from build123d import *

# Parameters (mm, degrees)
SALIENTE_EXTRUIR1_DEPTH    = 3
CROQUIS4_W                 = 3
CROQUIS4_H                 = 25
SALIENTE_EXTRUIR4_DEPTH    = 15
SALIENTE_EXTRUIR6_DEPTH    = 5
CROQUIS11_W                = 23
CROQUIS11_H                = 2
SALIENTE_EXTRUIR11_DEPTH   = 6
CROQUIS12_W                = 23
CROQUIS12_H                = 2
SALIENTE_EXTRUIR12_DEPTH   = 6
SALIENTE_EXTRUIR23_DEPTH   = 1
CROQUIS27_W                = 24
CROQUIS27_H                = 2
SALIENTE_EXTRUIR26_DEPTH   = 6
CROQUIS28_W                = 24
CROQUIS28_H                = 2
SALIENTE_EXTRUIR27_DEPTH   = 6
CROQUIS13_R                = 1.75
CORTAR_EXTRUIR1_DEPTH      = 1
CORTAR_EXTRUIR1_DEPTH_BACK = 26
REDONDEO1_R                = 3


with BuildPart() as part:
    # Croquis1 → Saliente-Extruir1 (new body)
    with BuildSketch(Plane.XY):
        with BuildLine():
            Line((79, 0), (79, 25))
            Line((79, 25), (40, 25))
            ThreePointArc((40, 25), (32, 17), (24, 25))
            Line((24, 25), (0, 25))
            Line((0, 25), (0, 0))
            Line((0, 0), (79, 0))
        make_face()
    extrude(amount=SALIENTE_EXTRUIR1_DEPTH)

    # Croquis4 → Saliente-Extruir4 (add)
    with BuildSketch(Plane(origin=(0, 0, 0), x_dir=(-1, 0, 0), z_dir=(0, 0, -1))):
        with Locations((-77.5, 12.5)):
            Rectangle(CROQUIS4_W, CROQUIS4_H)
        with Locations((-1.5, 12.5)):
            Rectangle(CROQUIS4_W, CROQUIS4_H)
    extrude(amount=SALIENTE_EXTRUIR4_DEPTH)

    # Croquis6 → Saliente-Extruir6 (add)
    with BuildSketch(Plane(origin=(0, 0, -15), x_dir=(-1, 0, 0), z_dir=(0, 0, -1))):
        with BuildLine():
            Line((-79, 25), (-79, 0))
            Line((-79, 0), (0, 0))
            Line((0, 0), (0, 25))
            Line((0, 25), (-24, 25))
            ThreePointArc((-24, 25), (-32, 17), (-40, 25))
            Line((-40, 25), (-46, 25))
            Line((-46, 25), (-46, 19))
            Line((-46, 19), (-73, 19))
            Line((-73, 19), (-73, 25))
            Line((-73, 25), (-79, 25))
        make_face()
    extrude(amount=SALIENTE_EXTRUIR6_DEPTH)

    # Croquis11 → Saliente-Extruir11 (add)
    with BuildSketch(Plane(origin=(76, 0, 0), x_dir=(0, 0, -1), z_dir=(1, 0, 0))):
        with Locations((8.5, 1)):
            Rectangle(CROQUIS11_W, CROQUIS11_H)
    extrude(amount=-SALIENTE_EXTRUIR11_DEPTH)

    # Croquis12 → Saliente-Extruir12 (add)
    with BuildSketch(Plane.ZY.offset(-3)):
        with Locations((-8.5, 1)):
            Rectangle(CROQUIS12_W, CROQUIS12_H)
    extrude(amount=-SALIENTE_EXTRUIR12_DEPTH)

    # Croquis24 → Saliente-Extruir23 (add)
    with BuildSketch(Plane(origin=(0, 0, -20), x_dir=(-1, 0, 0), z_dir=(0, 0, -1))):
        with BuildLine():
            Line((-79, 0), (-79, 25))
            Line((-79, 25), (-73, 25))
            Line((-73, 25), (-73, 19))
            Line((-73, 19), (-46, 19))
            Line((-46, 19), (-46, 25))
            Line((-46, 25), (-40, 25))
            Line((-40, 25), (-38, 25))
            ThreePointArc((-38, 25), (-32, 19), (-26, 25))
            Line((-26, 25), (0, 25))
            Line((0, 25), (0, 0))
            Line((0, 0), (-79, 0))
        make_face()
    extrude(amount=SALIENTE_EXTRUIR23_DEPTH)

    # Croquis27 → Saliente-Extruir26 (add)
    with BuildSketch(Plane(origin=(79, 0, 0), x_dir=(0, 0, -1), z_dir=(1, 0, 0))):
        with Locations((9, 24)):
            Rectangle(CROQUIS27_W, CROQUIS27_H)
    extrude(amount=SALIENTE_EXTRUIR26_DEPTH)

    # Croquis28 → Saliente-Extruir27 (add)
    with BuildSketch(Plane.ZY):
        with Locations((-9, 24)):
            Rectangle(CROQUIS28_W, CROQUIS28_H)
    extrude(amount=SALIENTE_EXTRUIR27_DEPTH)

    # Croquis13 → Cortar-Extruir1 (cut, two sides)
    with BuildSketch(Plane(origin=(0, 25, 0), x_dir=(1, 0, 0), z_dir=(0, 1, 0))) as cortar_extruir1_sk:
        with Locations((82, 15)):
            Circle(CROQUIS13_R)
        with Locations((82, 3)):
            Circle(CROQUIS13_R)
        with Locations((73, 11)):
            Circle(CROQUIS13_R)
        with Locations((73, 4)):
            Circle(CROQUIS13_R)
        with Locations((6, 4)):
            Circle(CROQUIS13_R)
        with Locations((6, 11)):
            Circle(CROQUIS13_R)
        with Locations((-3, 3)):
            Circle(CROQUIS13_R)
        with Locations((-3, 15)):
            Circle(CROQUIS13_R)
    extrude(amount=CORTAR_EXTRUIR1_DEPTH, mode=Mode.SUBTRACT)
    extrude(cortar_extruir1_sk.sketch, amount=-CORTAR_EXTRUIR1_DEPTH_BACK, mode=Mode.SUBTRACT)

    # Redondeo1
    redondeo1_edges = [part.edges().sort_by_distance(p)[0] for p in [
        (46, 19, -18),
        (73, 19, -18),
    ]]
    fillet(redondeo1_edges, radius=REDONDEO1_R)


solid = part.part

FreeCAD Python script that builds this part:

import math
import FreeCAD as App
import Part
import Sketcher


def edges_at(feature, points):
    """Names of the edges that pass closest to the given points."""
    edges = feature.Shape.Edges
    near = lambda p: min(range(len(edges)), key=lambda i: edges[i].distToShape(Part.Vertex(*p))[0])
    return sorted({f"Edge{near(p) + 1}" for p in points})

doc = App.newDocument("Part")
body = doc.addObject("PartDesign::Body", "Body")

# Sketch on XY plane
sketch1 = doc.addObject("Sketcher::SketchObject", "Sketch")
body.addObject(sketch1)
sketch1.AttachmentSupport = (doc.XY_Plane, [""])
sketch1.MapMode = "FlatFace"
sketch1.addGeometry(Part.LineSegment(App.Vector(79, 0, 0), App.Vector(79, 25, 0)), False)
sketch1.addGeometry(Part.LineSegment(App.Vector(79, 25, 0), App.Vector(40, 25, 0)), False)
sketch1.addGeometry(Part.ArcOfCircle(Part.Circle(App.Vector(32, 25, 0), App.Vector(0, 0, 1), 8), math.radians(180), math.radians(360)), False)
sketch1.addGeometry(Part.LineSegment(App.Vector(24, 25, 0), App.Vector(0, 25, 0)), False)
sketch1.addGeometry(Part.LineSegment(App.Vector(0, 25, 0), App.Vector(0, 0, 0)), False)
sketch1.addGeometry(Part.LineSegment(App.Vector(0, 0, 0), App.Vector(79, 0, 0)), False)
sketch1.addConstraint(Sketcher.Constraint("Coincident", 0, 2, 1, 1))
sketch1.addConstraint(Sketcher.Constraint("Coincident", 1, 2, 2, 2))
sketch1.addConstraint(Sketcher.Constraint("Coincident", 2, 1, 3, 1))
sketch1.addConstraint(Sketcher.Constraint("Coincident", 3, 2, 4, 1))
sketch1.addConstraint(Sketcher.Constraint("Coincident", 4, 2, 5, 1))
sketch1.addConstraint(Sketcher.Constraint("Coincident", 5, 2, 0, 1))
sketch1.addConstraint(Sketcher.Constraint("Vertical", 0))
sketch1.addConstraint(Sketcher.Constraint("Horizontal", 1))
sketch1.addConstraint(Sketcher.Constraint("Horizontal", 3))
sketch1.addConstraint(Sketcher.Constraint("Vertical", 4))
sketch1.addConstraint(Sketcher.Constraint("Horizontal", 5))
sketch1.addConstraint(Sketcher.Constraint("Coincident", 4, 2, -1, 1))
sketch1.addConstraint(Sketcher.Constraint("Horizontal", 2, 3, 0, 2))
sketch1.addConstraint(Sketcher.Constraint("Horizontal", 1, 2, 2, 1))
sketch1.addConstraint(Sketcher.Constraint("Radius", 2, 8.0))
sketch1.addConstraint(Sketcher.Constraint("DistanceX", 1, 2, 1, 1, 39.0))
sketch1.addConstraint(Sketcher.Constraint("DistanceX", 3, 2, 3, 1, 24.0))
sketch1.addConstraint(Sketcher.Constraint("DistanceY", 0, 1, 0, 2, 25.0))
pad1 = doc.addObject("PartDesign::Pad", "Pad")
body.addObject(pad1)
pad1.Profile = sketch1
pad1.Length = 3

# Sketch on XY plane
sketch2 = doc.addObject("Sketcher::SketchObject", "Sketch001")
body.addObject(sketch2)
sketch2.AttachmentSupport = (doc.XY_Plane, [""])
sketch2.MapMode = "FlatFace"
sketch2.addGeometry(Part.LineSegment(App.Vector(79, 25, 0), App.Vector(79, 0, 0)), False)
sketch2.addGeometry(Part.LineSegment(App.Vector(79, 0, 0), App.Vector(76, 0, 0)), False)
sketch2.addGeometry(Part.LineSegment(App.Vector(76, 0, 0), App.Vector(76, 25, 0)), False)
sketch2.addGeometry(Part.LineSegment(App.Vector(76, 25, 0), App.Vector(79, 25, 0)), False)
sketch2.addGeometry(Part.LineSegment(App.Vector(3, 25, 0), App.Vector(3, 0, 0)), False)
sketch2.addGeometry(Part.LineSegment(App.Vector(3, 0, 0), App.Vector(0, 0, 0)), False)
sketch2.addGeometry(Part.LineSegment(App.Vector(0, 0, 0), App.Vector(0, 25, 0)), False)
sketch2.addGeometry(Part.LineSegment(App.Vector(0, 25, 0), App.Vector(3, 25, 0)), False)
sketch2.addConstraint(Sketcher.Constraint("Coincident", 0, 2, 1, 1))
sketch2.addConstraint(Sketcher.Constraint("Coincident", 1, 2, 2, 1))
sketch2.addConstraint(Sketcher.Constraint("Coincident", 2, 2, 3, 1))
sketch2.addConstraint(Sketcher.Constraint("Coincident", 3, 2, 0, 1))
sketch2.addConstraint(Sketcher.Constraint("Coincident", 4, 2, 5, 1))
sketch2.addConstraint(Sketcher.Constraint("Coincident", 5, 2, 6, 1))
sketch2.addConstraint(Sketcher.Constraint("Coincident", 6, 2, 7, 1))
sketch2.addConstraint(Sketcher.Constraint("Coincident", 7, 2, 4, 1))
sketch2.addConstraint(Sketcher.Constraint("Vertical", 0))
sketch2.addConstraint(Sketcher.Constraint("Horizontal", 1))
sketch2.addConstraint(Sketcher.Constraint("Vertical", 2))
sketch2.addConstraint(Sketcher.Constraint("Horizontal", 3))
sketch2.addConstraint(Sketcher.Constraint("Vertical", 4))
sketch2.addConstraint(Sketcher.Constraint("Horizontal", 5))
sketch2.addConstraint(Sketcher.Constraint("Vertical", 6))
sketch2.addConstraint(Sketcher.Constraint("Horizontal", 7))
sketch2.addConstraint(Sketcher.Constraint("Coincident", 5, 2, -1, 1))
sketch2.addConstraint(Sketcher.Constraint("PointOnObject", 0, 2, -1))
sketch2.addConstraint(Sketcher.Constraint("Horizontal", 3, 2, 6, 2))
sketch2.addConstraint(Sketcher.Constraint("Equal", 3, 5))
sketch2.addConstraint(Sketcher.Constraint("DistanceX", 1, 2, 1, 1, 3.0))
sketch2.addConstraint(Sketcher.Constraint("DistanceY", 0, 2, 0, 1, 25.0))
sketch2.addConstraint(Sketcher.Constraint("DistanceX", -1, 1, 0, 2, 79.0))
pad2 = doc.addObject("PartDesign::Pad", "Pad001")
body.addObject(pad2)
pad2.Profile = sketch2
pad2.Length = 15
pad2.Reversed = True

# Sketch on XY plane
sketch3 = doc.addObject("Sketcher::SketchObject", "Sketch002")
body.addObject(sketch3)
sketch3.AttachmentSupport = (doc.XY_Plane, [""])
sketch3.MapMode = "FlatFace"
sketch3.AttachmentOffset = App.Placement(App.Vector(0, 0, -15), App.Rotation())
sketch3.addGeometry(Part.LineSegment(App.Vector(79, 25, 0), App.Vector(79, 0, 0)), False)
sketch3.addGeometry(Part.LineSegment(App.Vector(79, 0, 0), App.Vector(0, 0, 0)), False)
sketch3.addGeometry(Part.LineSegment(App.Vector(0, 0, 0), App.Vector(0, 25, 0)), False)
sketch3.addGeometry(Part.LineSegment(App.Vector(0, 25, 0), App.Vector(24, 25, 0)), False)
sketch3.addGeometry(Part.ArcOfCircle(Part.Circle(App.Vector(32, 25, 0), App.Vector(0, 0, 1), 8), math.radians(180), math.radians(360)), False)
sketch3.addGeometry(Part.LineSegment(App.Vector(40, 25, 0), App.Vector(46, 25, 0)), False)
sketch3.addGeometry(Part.LineSegment(App.Vector(46, 25, 0), App.Vector(46, 19, 0)), False)
sketch3.addGeometry(Part.LineSegment(App.Vector(46, 19, 0), App.Vector(73, 19, 0)), False)
sketch3.addGeometry(Part.LineSegment(App.Vector(73, 19, 0), App.Vector(73, 25, 0)), False)
sketch3.addGeometry(Part.LineSegment(App.Vector(73, 25, 0), App.Vector(79, 25, 0)), False)
sketch3.addConstraint(Sketcher.Constraint("Coincident", 0, 2, 1, 1))
sketch3.addConstraint(Sketcher.Constraint("Coincident", 1, 2, 2, 1))
sketch3.addConstraint(Sketcher.Constraint("Coincident", 2, 2, 3, 1))
sketch3.addConstraint(Sketcher.Constraint("Coincident", 3, 2, 4, 1))
sketch3.addConstraint(Sketcher.Constraint("Coincident", 4, 2, 5, 1))
sketch3.addConstraint(Sketcher.Constraint("Coincident", 5, 2, 6, 1))
sketch3.addConstraint(Sketcher.Constraint("Coincident", 6, 2, 7, 1))
sketch3.addConstraint(Sketcher.Constraint("Coincident", 7, 2, 8, 1))
sketch3.addConstraint(Sketcher.Constraint("Coincident", 8, 2, 9, 1))
sketch3.addConstraint(Sketcher.Constraint("Coincident", 9, 2, 0, 1))
sketch3.addConstraint(Sketcher.Constraint("Vertical", 0))
sketch3.addConstraint(Sketcher.Constraint("Horizontal", 1))
sketch3.addConstraint(Sketcher.Constraint("Vertical", 2))
sketch3.addConstraint(Sketcher.Constraint("Horizontal", 3))
sketch3.addConstraint(Sketcher.Constraint("Horizontal", 5))
sketch3.addConstraint(Sketcher.Constraint("Vertical", 6))
sketch3.addConstraint(Sketcher.Constraint("Horizontal", 7))
sketch3.addConstraint(Sketcher.Constraint("Vertical", 8))
sketch3.addConstraint(Sketcher.Constraint("Horizontal", 9))
sketch3.addConstraint(Sketcher.Constraint("Coincident", 1, 2, -1, 1))
sketch3.addConstraint(Sketcher.Constraint("Horizontal", 4, 3, 2, 2))
sketch3.addConstraint(Sketcher.Constraint("Horizontal", 3, 2, 4, 2))
sketch3.addConstraint(Sketcher.Constraint("Horizontal", 5, 2, 8, 2))
sketch3.addConstraint(Sketcher.Constraint("Equal", 5, 9))
sketch3.addConstraint(Sketcher.Constraint("Equal", 9, 6))
sketch3.addConstraint(Sketcher.Constraint("Radius", 4, 8.0))
sketch3.addConstraint(Sketcher.Constraint("DistanceX", 1, 2, 1, 1, 79.0))
sketch3.addConstraint(Sketcher.Constraint("DistanceX", 3, 1, 3, 2, 24.0))
sketch3.addConstraint(Sketcher.Constraint("DistanceX", 5, 1, 5, 2, 6.0))
sketch3.addConstraint(Sketcher.Constraint("DistanceY", 0, 2, 0, 1, 25.0))
pad3 = doc.addObject("PartDesign::Pad", "Pad002")
body.addObject(pad3)
pad3.Profile = sketch3
pad3.Length = 5
pad3.Reversed = True

# Sketch on YZ plane
sketch4 = doc.addObject("Sketcher::SketchObject", "Sketch003")
body.addObject(sketch4)
sketch4.AttachmentSupport = (doc.YZ_Plane, [""])
sketch4.MapMode = "FlatFace"
sketch4.AttachmentOffset = App.Placement(App.Vector(0, 0, 76), App.Rotation())
sketch4.addGeometry(Part.LineSegment(App.Vector(2, 3, 0), App.Vector(0, 3, 0)), False)
sketch4.addGeometry(Part.LineSegment(App.Vector(0, 3, 0), App.Vector(0, -20, 0)), False)
sketch4.addGeometry(Part.LineSegment(App.Vector(0, -20, 0), App.Vector(2, -20, 0)), False)
sketch4.addGeometry(Part.LineSegment(App.Vector(2, -20, 0), App.Vector(2, 3, 0)), False)
sketch4.addConstraint(Sketcher.Constraint("Coincident", 0, 2, 1, 1))
sketch4.addConstraint(Sketcher.Constraint("Coincident", 1, 2, 2, 1))
sketch4.addConstraint(Sketcher.Constraint("Coincident", 2, 2, 3, 1))
sketch4.addConstraint(Sketcher.Constraint("Coincident", 3, 2, 0, 1))
sketch4.addConstraint(Sketcher.Constraint("Horizontal", 0))
sketch4.addConstraint(Sketcher.Constraint("Vertical", 1))
sketch4.addConstraint(Sketcher.Constraint("Horizontal", 2))
sketch4.addConstraint(Sketcher.Constraint("Vertical", 3))
sketch4.addConstraint(Sketcher.Constraint("PointOnObject", 0, 2, -2))
sketch4.addConstraint(Sketcher.Constraint("DistanceX", 0, 2, 0, 1, 2.0))
sketch4.addConstraint(Sketcher.Constraint("DistanceY", 1, 2, 1, 1, 23.0))
sketch4.addConstraint(Sketcher.Constraint("DistanceY", -1, 1, 0, 2, 3.0))
pad4 = doc.addObject("PartDesign::Pad", "Pad003")
body.addObject(pad4)
pad4.Profile = sketch4
pad4.Length = 6
pad4.Reversed = True

# Sketch on YZ plane
sketch5 = doc.addObject("Sketcher::SketchObject", "Sketch004")
body.addObject(sketch5)
sketch5.AttachmentSupport = (doc.YZ_Plane, [""])
sketch5.MapMode = "FlatFace"
sketch5.AttachmentOffset = App.Placement(App.Vector(0, 0, 3), App.Rotation())
sketch5.addGeometry(Part.LineSegment(App.Vector(2, -20, 0), App.Vector(0, -20, 0)), False)
sketch5.addGeometry(Part.LineSegment(App.Vector(0, -20, 0), App.Vector(0, 3, 0)), False)
sketch5.addGeometry(Part.LineSegment(App.Vector(0, 3, 0), App.Vector(2, 3, 0)), False)
sketch5.addGeometry(Part.LineSegment(App.Vector(2, 3, 0), App.Vector(2, -20, 0)), False)
sketch5.addConstraint(Sketcher.Constraint("Coincident", 0, 2, 1, 1))
sketch5.addConstraint(Sketcher.Constraint("Coincident", 1, 2, 2, 1))
sketch5.addConstraint(Sketcher.Constraint("Coincident", 2, 2, 3, 1))
sketch5.addConstraint(Sketcher.Constraint("Coincident", 3, 2, 0, 1))
sketch5.addConstraint(Sketcher.Constraint("Horizontal", 0))
sketch5.addConstraint(Sketcher.Constraint("Vertical", 1))
sketch5.addConstraint(Sketcher.Constraint("Horizontal", 2))
sketch5.addConstraint(Sketcher.Constraint("Vertical", 3))
sketch5.addConstraint(Sketcher.Constraint("PointOnObject", 0, 2, -2))
sketch5.addConstraint(Sketcher.Constraint("DistanceX", 0, 2, 0, 1, 2.0))
sketch5.addConstraint(Sketcher.Constraint("DistanceY", 1, 1, 1, 2, 23.0))
sketch5.addConstraint(Sketcher.Constraint("DistanceY", 0, 2, -1, 1, 20.0))
pad5 = doc.addObject("PartDesign::Pad", "Pad004")
body.addObject(pad5)
pad5.Profile = sketch5
pad5.Length = 6

# Sketch on XY plane
sketch6 = doc.addObject("Sketcher::SketchObject", "Sketch005")
body.addObject(sketch6)
sketch6.AttachmentSupport = (doc.XY_Plane, [""])
sketch6.MapMode = "FlatFace"
sketch6.AttachmentOffset = App.Placement(App.Vector(0, 0, -20), App.Rotation())
sketch6.addGeometry(Part.LineSegment(App.Vector(79, 25, 0), App.Vector(79, 0, 0)), False)
sketch6.addGeometry(Part.LineSegment(App.Vector(79, 0, 0), App.Vector(0, 0, 0)), False)
sketch6.addGeometry(Part.LineSegment(App.Vector(0, 0, 0), App.Vector(0, 25, 0)), False)
sketch6.addGeometry(Part.LineSegment(App.Vector(0, 25, 0), App.Vector(26, 25, 0)), False)
sketch6.addGeometry(Part.ArcOfCircle(Part.Circle(App.Vector(32, 25, 0), App.Vector(0, 0, 1), 6), math.radians(180), math.radians(360)), False)
sketch6.addGeometry(Part.LineSegment(App.Vector(38, 25, 0), App.Vector(46, 25, 0)), False)
sketch6.addGeometry(Part.LineSegment(App.Vector(46, 25, 0), App.Vector(46, 19, 0)), False)
sketch6.addGeometry(Part.LineSegment(App.Vector(46, 19, 0), App.Vector(73, 19, 0)), False)
sketch6.addGeometry(Part.LineSegment(App.Vector(73, 19, 0), App.Vector(73, 25, 0)), False)
sketch6.addGeometry(Part.LineSegment(App.Vector(73, 25, 0), App.Vector(79, 25, 0)), False)
sketch6.addConstraint(Sketcher.Constraint("Coincident", 0, 2, 1, 1))
sketch6.addConstraint(Sketcher.Constraint("Coincident", 1, 2, 2, 1))
sketch6.addConstraint(Sketcher.Constraint("Coincident", 2, 2, 3, 1))
sketch6.addConstraint(Sketcher.Constraint("Coincident", 3, 2, 4, 1))
sketch6.addConstraint(Sketcher.Constraint("Coincident", 4, 2, 5, 1))
sketch6.addConstraint(Sketcher.Constraint("Coincident", 5, 2, 6, 1))
sketch6.addConstraint(Sketcher.Constraint("Coincident", 6, 2, 7, 1))
sketch6.addConstraint(Sketcher.Constraint("Coincident", 7, 2, 8, 1))
sketch6.addConstraint(Sketcher.Constraint("Coincident", 8, 2, 9, 1))
sketch6.addConstraint(Sketcher.Constraint("Coincident", 9, 2, 0, 1))
sketch6.addConstraint(Sketcher.Constraint("Vertical", 0))
sketch6.addConstraint(Sketcher.Constraint("Horizontal", 1))
sketch6.addConstraint(Sketcher.Constraint("Vertical", 2))
sketch6.addConstraint(Sketcher.Constraint("Horizontal", 3))
sketch6.addConstraint(Sketcher.Constraint("Horizontal", 5))
sketch6.addConstraint(Sketcher.Constraint("Vertical", 6))
sketch6.addConstraint(Sketcher.Constraint("Horizontal", 7))
sketch6.addConstraint(Sketcher.Constraint("Vertical", 8))
sketch6.addConstraint(Sketcher.Constraint("Horizontal", 9))
sketch6.addConstraint(Sketcher.Constraint("Coincident", 1, 2, -1, 1))
sketch6.addConstraint(Sketcher.Constraint("Horizontal", 4, 3, 2, 2))
sketch6.addConstraint(Sketcher.Constraint("Horizontal", 3, 2, 4, 2))
sketch6.addConstraint(Sketcher.Constraint("Horizontal", 5, 2, 8, 2))
sketch6.addConstraint(Sketcher.Constraint("Equal", 9, 6))
sketch6.addConstraint(Sketcher.Constraint("Radius", 4, 6.0))
sketch6.addConstraint(Sketcher.Constraint("DistanceX", 1, 2, 1, 1, 79.0))
sketch6.addConstraint(Sketcher.Constraint("DistanceX", 3, 1, 3, 2, 26.0))
sketch6.addConstraint(Sketcher.Constraint("DistanceX", 5, 1, 5, 2, 8.0))
sketch6.addConstraint(Sketcher.Constraint("DistanceX", 7, 1, 7, 2, 27.0))
sketch6.addConstraint(Sketcher.Constraint("DistanceY", 0, 2, 0, 1, 25.0))
pad6 = doc.addObject("PartDesign::Pad", "Pad005")
body.addObject(pad6)
pad6.Profile = sketch6
pad6.Length = 1
pad6.Reversed = True

# Sketch on YZ plane
sketch7 = doc.addObject("Sketcher::SketchObject", "Sketch006")
body.addObject(sketch7)
sketch7.AttachmentSupport = (doc.YZ_Plane, [""])
sketch7.MapMode = "FlatFace"
sketch7.AttachmentOffset = App.Placement(App.Vector(0, 0, 79), App.Rotation())
sketch7.addGeometry(Part.LineSegment(App.Vector(25, 3, 0), App.Vector(23, 3, 0)), False)
sketch7.addGeometry(Part.LineSegment(App.Vector(23, 3, 0), App.Vector(23, -21, 0)), False)
sketch7.addGeometry(Part.LineSegment(App.Vector(23, -21, 0), App.Vector(25, -21, 0)), False)
sketch7.addGeometry(Part.LineSegment(App.Vector(25, -21, 0), App.Vector(25, 3, 0)), False)
sketch7.addConstraint(Sketcher.Constraint("Coincident", 0, 2, 1, 1))
sketch7.addConstraint(Sketcher.Constraint("Coincident", 1, 2, 2, 1))
sketch7.addConstraint(Sketcher.Constraint("Coincident", 2, 2, 3, 1))
sketch7.addConstraint(Sketcher.Constraint("Coincident", 3, 2, 0, 1))
sketch7.addConstraint(Sketcher.Constraint("Horizontal", 0))
sketch7.addConstraint(Sketcher.Constraint("Vertical", 1))
sketch7.addConstraint(Sketcher.Constraint("Horizontal", 2))
sketch7.addConstraint(Sketcher.Constraint("Vertical", 3))
sketch7.addConstraint(Sketcher.Constraint("DistanceX", 0, 2, 0, 1, 2.0))
sketch7.addConstraint(Sketcher.Constraint("DistanceY", 1, 2, 1, 1, 24.0))
sketch7.addConstraint(Sketcher.Constraint("DistanceX", -1, 1, 0, 2, 23.0))
sketch7.addConstraint(Sketcher.Constraint("DistanceY", -1, 1, 0, 2, 3.0))
pad7 = doc.addObject("PartDesign::Pad", "Pad006")
body.addObject(pad7)
pad7.Profile = sketch7
pad7.Length = 6

# Sketch on YZ plane
sketch8 = doc.addObject("Sketcher::SketchObject", "Sketch007")
body.addObject(sketch8)
sketch8.AttachmentSupport = (doc.YZ_Plane, [""])
sketch8.MapMode = "FlatFace"
sketch8.addGeometry(Part.LineSegment(App.Vector(25, -21, 0), App.Vector(23, -21, 0)), False)
sketch8.addGeometry(Part.LineSegment(App.Vector(23, -21, 0), App.Vector(23, 3, 0)), False)
sketch8.addGeometry(Part.LineSegment(App.Vector(23, 3, 0), App.Vector(25, 3, 0)), False)
sketch8.addGeometry(Part.LineSegment(App.Vector(25, 3, 0), App.Vector(25, -21, 0)), False)
sketch8.addConstraint(Sketcher.Constraint("Coincident", 0, 2, 1, 1))
sketch8.addConstraint(Sketcher.Constraint("Coincident", 1, 2, 2, 1))
sketch8.addConstraint(Sketcher.Constraint("Coincident", 2, 2, 3, 1))
sketch8.addConstraint(Sketcher.Constraint("Coincident", 3, 2, 0, 1))
sketch8.addConstraint(Sketcher.Constraint("Horizontal", 0))
sketch8.addConstraint(Sketcher.Constraint("Vertical", 1))
sketch8.addConstraint(Sketcher.Constraint("Horizontal", 2))
sketch8.addConstraint(Sketcher.Constraint("Vertical", 3))
sketch8.addConstraint(Sketcher.Constraint("DistanceX", 0, 2, 0, 1, 2.0))
sketch8.addConstraint(Sketcher.Constraint("DistanceY", 1, 1, 1, 2, 24.0))
sketch8.addConstraint(Sketcher.Constraint("DistanceX", -1, 1, 0, 2, 23.0))
sketch8.addConstraint(Sketcher.Constraint("DistanceY", 0, 2, -1, 1, 21.0))
pad8 = doc.addObject("PartDesign::Pad", "Pad007")
body.addObject(pad8)
pad8.Profile = sketch8
pad8.Length = 6
pad8.Reversed = True

# Sketch on XZ plane
sketch9 = doc.addObject("Sketcher::SketchObject", "Sketch008")
body.addObject(sketch9)
sketch9.AttachmentSupport = (doc.XZ_Plane, [""])
sketch9.MapMode = "FlatFace"
sketch9.AttachmentOffset = App.Placement(App.Vector(0, 0, -25), App.Rotation())
sketch9.addGeometry(Part.Circle(App.Vector(82, -15, 0), App.Vector(0, 0, 1), 1.75), False)
sketch9.addGeometry(Part.Circle(App.Vector(82, -3, 0), App.Vector(0, 0, 1), 1.75), False)
sketch9.addGeometry(Part.Circle(App.Vector(73, -11, 0), App.Vector(0, 0, 1), 1.75), False)
sketch9.addGeometry(Part.Circle(App.Vector(73, -4, 0), App.Vector(0, 0, 1), 1.75), False)
sketch9.addGeometry(Part.Circle(App.Vector(6, -4, 0), App.Vector(0, 0, 1), 1.75), False)
sketch9.addGeometry(Part.Circle(App.Vector(6, -11, 0), App.Vector(0, 0, 1), 1.75), False)
sketch9.addGeometry(Part.Circle(App.Vector(-3, -3, 0), App.Vector(0, 0, 1), 1.75), False)
sketch9.addGeometry(Part.Circle(App.Vector(-3, -15, 0), App.Vector(0, 0, 1), 1.75), False)
sketch9.addConstraint(Sketcher.Constraint("Equal", 0, 1))
sketch9.addConstraint(Sketcher.Constraint("Equal", 1, 2))
sketch9.addConstraint(Sketcher.Constraint("Equal", 2, 3))
sketch9.addConstraint(Sketcher.Constraint("Equal", 3, 4))
sketch9.addConstraint(Sketcher.Constraint("Equal", 4, 5))
sketch9.addConstraint(Sketcher.Constraint("Equal", 5, 6))
sketch9.addConstraint(Sketcher.Constraint("Equal", 6, 7))
sketch9.addConstraint(Sketcher.Constraint("Horizontal", 3, 3, 4, 3))
sketch9.addConstraint(Sketcher.Constraint("Horizontal", 2, 3, 5, 3))
sketch9.addConstraint(Sketcher.Constraint("Horizontal", 1, 3, 6, 3))
sketch9.addConstraint(Sketcher.Constraint("Horizontal", 0, 3, 7, 3))
sketch9.addConstraint(Sketcher.Constraint("Vertical", 0, 3, 1, 3))
sketch9.addConstraint(Sketcher.Constraint("Vertical", 2, 3, 3, 3))
sketch9.addConstraint(Sketcher.Constraint("Vertical", 4, 3, 5, 3))
sketch9.addConstraint(Sketcher.Constraint("Vertical", 6, 3, 7, 3))
sketch9.addConstraint(Sketcher.Constraint("Diameter", 0, 3.5))
sketch9.addConstraint(Sketcher.Constraint("DistanceX", -1, 1, 0, 3, 82.0))
sketch9.addConstraint(Sketcher.Constraint("DistanceY", 0, 3, -1, 1, 15.0))
sketch9.addConstraint(Sketcher.Constraint("DistanceY", 1, 3, -1, 1, 3.0))
sketch9.addConstraint(Sketcher.Constraint("DistanceX", -1, 1, 2, 3, 73.0))
sketch9.addConstraint(Sketcher.Constraint("DistanceY", 2, 3, -1, 1, 11.0))
sketch9.addConstraint(Sketcher.Constraint("DistanceY", 3, 3, -1, 1, 4.0))
sketch9.addConstraint(Sketcher.Constraint("DistanceX", -1, 1, 4, 3, 6.0))
sketch9.addConstraint(Sketcher.Constraint("DistanceX", 6, 3, -1, 1, 3.0))
pocket1 = doc.addObject("PartDesign::Pocket", "Pocket")
body.addObject(pocket1)
pocket1.Profile = sketch9
pocket1.Type = "ThroughAll"
pocket1.Midplane = True
doc.recompute()

fillet = doc.addObject("PartDesign::Fillet", "Fillet")
body.addObject(fillet)
fillet.Base = (pocket1, edges_at(pocket1, [(46, 19, -18), (73, 19, -18)]))
fillet.Radius = 3

doc.recompute()
